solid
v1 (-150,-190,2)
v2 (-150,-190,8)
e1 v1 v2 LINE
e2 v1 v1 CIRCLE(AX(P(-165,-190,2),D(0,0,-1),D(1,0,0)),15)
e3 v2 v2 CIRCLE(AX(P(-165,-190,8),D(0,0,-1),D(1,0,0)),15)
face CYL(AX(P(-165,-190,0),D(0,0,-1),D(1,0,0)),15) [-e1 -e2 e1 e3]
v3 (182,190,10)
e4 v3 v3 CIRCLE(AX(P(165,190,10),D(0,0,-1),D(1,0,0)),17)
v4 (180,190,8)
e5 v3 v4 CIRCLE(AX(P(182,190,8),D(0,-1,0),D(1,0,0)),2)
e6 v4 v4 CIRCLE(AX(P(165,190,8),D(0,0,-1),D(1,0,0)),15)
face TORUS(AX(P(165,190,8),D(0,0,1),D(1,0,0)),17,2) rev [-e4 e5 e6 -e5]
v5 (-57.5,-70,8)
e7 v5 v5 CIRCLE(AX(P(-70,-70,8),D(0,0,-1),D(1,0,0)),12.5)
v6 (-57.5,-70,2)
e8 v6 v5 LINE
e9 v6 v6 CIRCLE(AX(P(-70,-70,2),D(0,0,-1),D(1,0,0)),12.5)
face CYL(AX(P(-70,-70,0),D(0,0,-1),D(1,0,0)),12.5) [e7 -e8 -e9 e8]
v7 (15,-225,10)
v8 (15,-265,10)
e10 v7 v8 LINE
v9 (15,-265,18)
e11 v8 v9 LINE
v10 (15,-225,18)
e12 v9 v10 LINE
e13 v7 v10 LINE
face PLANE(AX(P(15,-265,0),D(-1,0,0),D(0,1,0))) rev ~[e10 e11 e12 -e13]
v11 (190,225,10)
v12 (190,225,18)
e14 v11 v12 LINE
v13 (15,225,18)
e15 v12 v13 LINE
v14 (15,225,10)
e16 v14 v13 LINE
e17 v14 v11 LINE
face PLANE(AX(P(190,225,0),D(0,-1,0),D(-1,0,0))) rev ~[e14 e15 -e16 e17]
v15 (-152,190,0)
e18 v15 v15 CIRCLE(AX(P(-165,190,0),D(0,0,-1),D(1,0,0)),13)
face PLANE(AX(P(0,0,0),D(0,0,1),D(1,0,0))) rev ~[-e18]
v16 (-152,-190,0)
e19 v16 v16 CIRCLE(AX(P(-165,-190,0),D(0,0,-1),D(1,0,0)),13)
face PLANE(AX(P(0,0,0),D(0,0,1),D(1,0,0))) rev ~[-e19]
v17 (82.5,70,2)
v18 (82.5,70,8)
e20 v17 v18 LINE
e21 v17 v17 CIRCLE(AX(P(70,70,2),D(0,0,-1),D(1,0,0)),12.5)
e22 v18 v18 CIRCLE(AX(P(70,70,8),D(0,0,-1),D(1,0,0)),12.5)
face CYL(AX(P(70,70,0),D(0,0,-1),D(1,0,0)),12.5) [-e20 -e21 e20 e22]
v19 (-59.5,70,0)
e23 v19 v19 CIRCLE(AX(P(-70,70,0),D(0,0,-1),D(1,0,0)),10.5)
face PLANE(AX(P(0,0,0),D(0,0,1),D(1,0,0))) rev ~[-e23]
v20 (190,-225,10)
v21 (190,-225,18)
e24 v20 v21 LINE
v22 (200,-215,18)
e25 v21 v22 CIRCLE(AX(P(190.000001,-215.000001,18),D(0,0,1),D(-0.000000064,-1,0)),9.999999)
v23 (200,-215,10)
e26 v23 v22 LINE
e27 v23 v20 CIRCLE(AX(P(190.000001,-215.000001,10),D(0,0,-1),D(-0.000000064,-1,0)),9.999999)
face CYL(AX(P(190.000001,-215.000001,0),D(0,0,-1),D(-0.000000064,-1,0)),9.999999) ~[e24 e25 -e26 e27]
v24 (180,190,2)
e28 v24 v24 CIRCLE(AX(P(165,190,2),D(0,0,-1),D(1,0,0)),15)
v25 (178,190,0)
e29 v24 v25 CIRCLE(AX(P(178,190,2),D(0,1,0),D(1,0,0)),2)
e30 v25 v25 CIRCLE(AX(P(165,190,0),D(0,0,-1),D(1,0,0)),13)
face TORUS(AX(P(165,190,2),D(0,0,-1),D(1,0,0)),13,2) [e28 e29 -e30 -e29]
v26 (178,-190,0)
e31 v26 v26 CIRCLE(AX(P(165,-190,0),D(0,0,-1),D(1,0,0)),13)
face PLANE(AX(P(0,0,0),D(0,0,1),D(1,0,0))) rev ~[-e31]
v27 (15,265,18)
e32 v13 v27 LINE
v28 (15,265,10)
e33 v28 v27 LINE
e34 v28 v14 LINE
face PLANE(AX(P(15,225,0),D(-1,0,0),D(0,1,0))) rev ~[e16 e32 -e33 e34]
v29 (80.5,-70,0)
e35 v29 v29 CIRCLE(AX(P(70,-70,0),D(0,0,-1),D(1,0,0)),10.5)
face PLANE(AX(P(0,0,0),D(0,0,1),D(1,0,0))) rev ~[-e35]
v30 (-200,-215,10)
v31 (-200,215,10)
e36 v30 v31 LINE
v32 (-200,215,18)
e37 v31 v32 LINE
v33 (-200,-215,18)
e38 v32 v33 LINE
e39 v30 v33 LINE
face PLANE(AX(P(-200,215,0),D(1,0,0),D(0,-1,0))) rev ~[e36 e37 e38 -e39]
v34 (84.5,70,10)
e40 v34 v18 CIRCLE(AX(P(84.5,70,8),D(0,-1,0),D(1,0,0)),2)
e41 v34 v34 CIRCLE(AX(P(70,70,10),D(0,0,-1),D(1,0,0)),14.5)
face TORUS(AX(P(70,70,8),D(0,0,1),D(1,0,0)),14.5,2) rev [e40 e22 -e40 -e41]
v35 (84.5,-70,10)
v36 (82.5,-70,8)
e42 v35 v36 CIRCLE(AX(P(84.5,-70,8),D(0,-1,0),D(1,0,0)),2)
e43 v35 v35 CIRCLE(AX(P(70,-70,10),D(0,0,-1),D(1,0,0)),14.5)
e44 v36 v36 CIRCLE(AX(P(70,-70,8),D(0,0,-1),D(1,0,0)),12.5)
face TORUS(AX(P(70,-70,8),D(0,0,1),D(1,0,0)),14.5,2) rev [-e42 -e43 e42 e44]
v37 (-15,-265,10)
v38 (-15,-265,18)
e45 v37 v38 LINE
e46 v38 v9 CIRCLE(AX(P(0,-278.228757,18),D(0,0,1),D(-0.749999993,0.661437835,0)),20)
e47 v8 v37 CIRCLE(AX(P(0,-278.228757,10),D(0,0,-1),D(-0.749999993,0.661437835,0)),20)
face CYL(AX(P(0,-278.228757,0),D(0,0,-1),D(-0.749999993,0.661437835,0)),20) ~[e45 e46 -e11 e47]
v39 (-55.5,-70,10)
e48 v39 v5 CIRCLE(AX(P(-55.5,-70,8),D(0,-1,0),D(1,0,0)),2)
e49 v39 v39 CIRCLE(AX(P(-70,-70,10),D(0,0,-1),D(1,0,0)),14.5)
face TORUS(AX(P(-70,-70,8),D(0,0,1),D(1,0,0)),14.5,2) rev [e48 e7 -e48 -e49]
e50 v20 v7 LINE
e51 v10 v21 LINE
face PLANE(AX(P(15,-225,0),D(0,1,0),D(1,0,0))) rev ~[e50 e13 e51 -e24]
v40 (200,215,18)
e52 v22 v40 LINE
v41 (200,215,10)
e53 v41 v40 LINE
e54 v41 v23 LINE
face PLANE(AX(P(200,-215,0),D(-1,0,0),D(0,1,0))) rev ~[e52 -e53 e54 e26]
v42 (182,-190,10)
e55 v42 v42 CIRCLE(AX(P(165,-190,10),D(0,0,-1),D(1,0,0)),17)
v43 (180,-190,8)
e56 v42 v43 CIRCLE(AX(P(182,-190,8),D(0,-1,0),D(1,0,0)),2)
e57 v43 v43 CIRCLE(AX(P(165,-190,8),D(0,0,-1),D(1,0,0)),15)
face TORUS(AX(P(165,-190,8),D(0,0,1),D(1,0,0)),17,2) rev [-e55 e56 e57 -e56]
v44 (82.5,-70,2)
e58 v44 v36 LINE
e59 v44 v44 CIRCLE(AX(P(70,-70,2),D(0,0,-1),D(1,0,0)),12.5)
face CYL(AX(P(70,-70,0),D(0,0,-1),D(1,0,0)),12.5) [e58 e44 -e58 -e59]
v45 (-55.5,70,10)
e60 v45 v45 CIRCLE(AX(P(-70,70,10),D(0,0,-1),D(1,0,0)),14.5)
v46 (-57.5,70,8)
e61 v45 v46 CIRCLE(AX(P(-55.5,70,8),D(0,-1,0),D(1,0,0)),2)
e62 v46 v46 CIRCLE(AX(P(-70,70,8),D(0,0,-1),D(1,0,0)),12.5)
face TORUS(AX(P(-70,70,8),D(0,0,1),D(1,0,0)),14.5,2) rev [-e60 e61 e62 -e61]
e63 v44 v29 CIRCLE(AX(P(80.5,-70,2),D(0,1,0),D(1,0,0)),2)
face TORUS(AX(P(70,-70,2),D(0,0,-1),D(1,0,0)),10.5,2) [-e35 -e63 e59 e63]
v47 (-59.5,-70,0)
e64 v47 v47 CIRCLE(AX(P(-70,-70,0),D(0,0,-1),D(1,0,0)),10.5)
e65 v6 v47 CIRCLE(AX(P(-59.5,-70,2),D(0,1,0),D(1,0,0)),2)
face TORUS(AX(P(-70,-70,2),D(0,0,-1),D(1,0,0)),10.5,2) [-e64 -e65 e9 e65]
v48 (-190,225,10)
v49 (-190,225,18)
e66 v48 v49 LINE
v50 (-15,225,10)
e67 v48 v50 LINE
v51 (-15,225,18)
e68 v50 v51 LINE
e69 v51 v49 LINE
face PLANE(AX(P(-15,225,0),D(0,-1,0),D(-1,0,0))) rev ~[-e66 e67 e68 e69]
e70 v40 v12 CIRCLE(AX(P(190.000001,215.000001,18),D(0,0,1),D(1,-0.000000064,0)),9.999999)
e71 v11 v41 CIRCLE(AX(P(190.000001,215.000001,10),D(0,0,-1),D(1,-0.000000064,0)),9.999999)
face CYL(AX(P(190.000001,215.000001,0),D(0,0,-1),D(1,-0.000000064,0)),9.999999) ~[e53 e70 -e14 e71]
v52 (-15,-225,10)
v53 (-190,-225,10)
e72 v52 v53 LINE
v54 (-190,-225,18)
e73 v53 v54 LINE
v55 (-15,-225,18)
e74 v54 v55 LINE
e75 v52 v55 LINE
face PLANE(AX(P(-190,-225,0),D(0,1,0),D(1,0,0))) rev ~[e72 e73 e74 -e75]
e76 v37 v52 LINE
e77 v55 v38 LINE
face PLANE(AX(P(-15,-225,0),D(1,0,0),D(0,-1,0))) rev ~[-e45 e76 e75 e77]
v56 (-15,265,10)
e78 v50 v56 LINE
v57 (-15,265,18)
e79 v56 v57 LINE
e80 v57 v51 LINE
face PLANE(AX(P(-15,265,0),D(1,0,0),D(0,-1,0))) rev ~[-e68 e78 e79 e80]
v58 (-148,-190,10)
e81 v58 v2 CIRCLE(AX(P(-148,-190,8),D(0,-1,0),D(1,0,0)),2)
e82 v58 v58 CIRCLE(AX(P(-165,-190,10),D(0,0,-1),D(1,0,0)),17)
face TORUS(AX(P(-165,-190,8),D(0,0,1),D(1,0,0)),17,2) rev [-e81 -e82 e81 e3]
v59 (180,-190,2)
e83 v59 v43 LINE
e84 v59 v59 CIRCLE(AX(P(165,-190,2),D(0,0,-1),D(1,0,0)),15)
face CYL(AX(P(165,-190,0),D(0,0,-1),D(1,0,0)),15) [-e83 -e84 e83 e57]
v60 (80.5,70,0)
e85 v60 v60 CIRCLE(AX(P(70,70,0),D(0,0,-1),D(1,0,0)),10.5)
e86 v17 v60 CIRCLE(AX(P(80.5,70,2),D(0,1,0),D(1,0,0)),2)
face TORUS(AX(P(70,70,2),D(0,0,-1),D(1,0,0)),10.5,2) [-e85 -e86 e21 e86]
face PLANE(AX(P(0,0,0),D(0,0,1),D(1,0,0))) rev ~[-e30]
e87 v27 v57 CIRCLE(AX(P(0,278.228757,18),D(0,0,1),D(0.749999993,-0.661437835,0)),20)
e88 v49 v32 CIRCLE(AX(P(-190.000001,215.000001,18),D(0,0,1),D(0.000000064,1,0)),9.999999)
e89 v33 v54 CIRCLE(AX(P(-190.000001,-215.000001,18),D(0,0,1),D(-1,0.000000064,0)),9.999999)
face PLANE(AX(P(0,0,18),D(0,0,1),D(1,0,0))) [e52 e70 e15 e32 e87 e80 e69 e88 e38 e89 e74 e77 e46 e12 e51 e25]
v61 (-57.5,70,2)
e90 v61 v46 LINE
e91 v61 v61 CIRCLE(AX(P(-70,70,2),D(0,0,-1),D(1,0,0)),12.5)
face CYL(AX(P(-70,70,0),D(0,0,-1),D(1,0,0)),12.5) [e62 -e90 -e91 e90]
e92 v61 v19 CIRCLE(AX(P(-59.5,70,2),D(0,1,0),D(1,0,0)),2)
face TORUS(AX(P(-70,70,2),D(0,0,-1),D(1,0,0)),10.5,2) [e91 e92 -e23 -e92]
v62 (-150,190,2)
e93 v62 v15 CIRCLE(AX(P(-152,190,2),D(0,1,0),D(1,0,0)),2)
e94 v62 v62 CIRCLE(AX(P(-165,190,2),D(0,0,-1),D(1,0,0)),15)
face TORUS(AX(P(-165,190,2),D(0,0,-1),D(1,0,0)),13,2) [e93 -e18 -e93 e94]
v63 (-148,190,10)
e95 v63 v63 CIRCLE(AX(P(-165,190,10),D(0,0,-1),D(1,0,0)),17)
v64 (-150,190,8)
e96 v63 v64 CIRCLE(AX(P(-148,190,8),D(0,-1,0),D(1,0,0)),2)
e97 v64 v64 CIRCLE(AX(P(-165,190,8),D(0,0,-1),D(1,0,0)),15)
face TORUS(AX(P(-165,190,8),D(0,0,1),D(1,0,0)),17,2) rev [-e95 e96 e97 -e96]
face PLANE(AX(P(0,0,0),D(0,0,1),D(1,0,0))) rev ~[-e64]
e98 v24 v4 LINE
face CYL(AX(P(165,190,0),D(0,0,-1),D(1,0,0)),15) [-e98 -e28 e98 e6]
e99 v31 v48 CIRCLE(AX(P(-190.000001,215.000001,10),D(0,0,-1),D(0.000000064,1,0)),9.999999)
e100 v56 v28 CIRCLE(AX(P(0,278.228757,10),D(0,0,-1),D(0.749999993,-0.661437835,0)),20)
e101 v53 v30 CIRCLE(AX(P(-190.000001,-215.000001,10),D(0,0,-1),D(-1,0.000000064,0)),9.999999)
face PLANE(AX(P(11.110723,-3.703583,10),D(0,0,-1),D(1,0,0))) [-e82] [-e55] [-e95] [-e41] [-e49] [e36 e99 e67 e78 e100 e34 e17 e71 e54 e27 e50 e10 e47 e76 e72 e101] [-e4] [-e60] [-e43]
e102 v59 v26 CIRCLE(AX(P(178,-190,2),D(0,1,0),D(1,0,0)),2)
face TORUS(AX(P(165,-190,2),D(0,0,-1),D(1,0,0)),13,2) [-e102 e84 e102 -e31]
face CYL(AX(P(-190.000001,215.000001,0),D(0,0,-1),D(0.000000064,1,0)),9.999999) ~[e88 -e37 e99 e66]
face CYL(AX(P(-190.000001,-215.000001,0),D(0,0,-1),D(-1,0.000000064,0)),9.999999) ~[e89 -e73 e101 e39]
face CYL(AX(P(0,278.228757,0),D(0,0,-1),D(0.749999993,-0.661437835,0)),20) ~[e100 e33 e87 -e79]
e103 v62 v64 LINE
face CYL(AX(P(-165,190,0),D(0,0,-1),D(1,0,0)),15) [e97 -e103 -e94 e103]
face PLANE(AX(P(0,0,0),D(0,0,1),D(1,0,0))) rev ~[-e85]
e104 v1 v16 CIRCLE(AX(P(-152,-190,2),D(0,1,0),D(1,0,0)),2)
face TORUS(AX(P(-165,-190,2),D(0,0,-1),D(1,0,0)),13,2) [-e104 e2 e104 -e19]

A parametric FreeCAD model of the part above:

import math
import FreeCAD as App
import Part
import Sketcher
Q = App.Units.Quantity


def edges_at(feature, points):
    """Names of the edges that pass closest to the given points."""
    edges = feature.Shape.Edges
    near = lambda p: min(range(len(edges)), key=lambda i: edges[i].distToShape(Part.Vertex(*p))[0])
    return sorted({f"Edge{near(p) + 1}" for p in points})


def add_polygon(sketch, points):
    """Adds a closed chain of lines whose ends are joined by coincident constraints."""
    first, n = sketch.GeometryCount, len(points)
    for a, b in zip(points, points[1:] + points[:1]):
        sketch.addGeometry(Part.LineSegment(App.Vector(*a, 0), App.Vector(*b, 0)), False)
    for i in range(n):
        sketch.addConstraint(Sketcher.Constraint("Coincident", first + i, 2, first + (i + 1) % n, 1))

doc = App.newDocument("Part")
body = doc.addObject("PartDesign::Body", "Body")

sketch1 = body.newObject("Sketcher::SketchObject", "Sketch")
sketch1.AttachmentSupport = (doc.getObject("XY_Plane"), [""])
sketch1.MapMode = "FlatFace"
sketch1.addGeometry([
    Part.LineSegment(App.Vector(-200, 215, 0), App.Vector(-200, -215, 0)),
    Part.ArcOfCircle(Part.Circle(App.Vector(-190.000001, -215.000001, 0), App.Vector(0, 0, 1), 9.999999), math.radians(179.999996), math.radians(270.000004)),
    Part.LineSegment(App.Vector(-190, -225, 0), App.Vector(-15, -225, 0)),
    Part.LineSegment(App.Vector(-15, -225, 0), App.Vector(-15, -265, 0)),
    Part.ArcOfCircle(Part.Circle(App.Vector(0, -278.228757, 0), App.Vector(0, 0, 1), 20), math.radians(138.590377), math.radians(401.409623)),
    Part.LineSegment(App.Vector(15, -265, 0), App.Vector(15, -225, 0)),
    Part.LineSegment(App.Vector(15, -225, 0), App.Vector(190, -225, 0)),
    Part.ArcOfCircle(Part.Circle(App.Vector(190.000001, -215.000001, 0), App.Vector(0, 0, 1), 9.999999), math.radians(-90.000004), math.radians(0.000004)),
    Part.LineSegment(App.Vector(200, -215, 0), App.Vector(200, 215, 0)),
    Part.ArcOfCircle(Part.Circle(App.Vector(190.000001, 215.000001, 0), App.Vector(0, 0, 1), 9.999999), math.radians(-0.000004), math.radians(90.000004)),
    Part.LineSegment(App.Vector(190, 225, 0), App.Vector(15, 225, 0)),
    Part.LineSegment(App.Vector(15, 225, 0), App.Vector(15, 265, 0)),
    Part.ArcOfCircle(Part.Circle(App.Vector(0, 278.228757, 0), App.Vector(0, 0, 1), 20), math.radians(-41.409623), math.radians(221.409623)),
    Part.LineSegment(App.Vector(-15, 265, 0), App.Vector(-15, 225, 0)),
    Part.LineSegment(App.Vector(-15, 225, 0), App.Vector(-190, 225, 0)),
    Part.ArcOfCircle(Part.Circle(App.Vector(-190.000001, 215.000001, 0), App.Vector(0, 0, 1), 9.999999), math.radians(89.999996), math.radians(180.000004)),
], False)
sketch1.addConstraint([
    Sketcher.Constraint("Tangent", 0, 2, 1, 1),
    Sketcher.Constraint("Tangent", 1, 2, 2, 1),
    Sketcher.Constraint("Coincident", 2, 2, 3, 1),
    Sketcher.Constraint("Coincident", 3, 2, 4, 1),
    Sketcher.Constraint("Coincident", 4, 2, 5, 1),
    Sketcher.Constraint("Coincident", 5, 2, 6, 1),
    Sketcher.Constraint("Tangent", 6, 2, 7, 1),
    Sketcher.Constraint("Tangent", 7, 2, 8, 1),
    Sketcher.Constraint("Tangent", 8, 2, 9, 1),
    Sketcher.Constraint("Tangent", 9, 2, 10, 1),
    Sketcher.Constraint("Coincident", 10, 2, 11, 1),
    Sketcher.Constraint("Coincident", 11, 2, 12, 1),
    Sketcher.Constraint("Coincident", 12, 2, 13, 1),
    Sketcher.Constraint("Coincident", 13, 2, 14, 1),
    Sketcher.Constraint("Tangent", 14, 2, 15, 1),
    Sketcher.Constraint("Tangent", 15, 2, 0, 1),
    Sketcher.Constraint("Vertical", 0),
    Sketcher.Constraint("Horizontal", 2),
    Sketcher.Constraint("Vertical", 3),
    Sketcher.Constraint("Vertical", 5),
    Sketcher.Constraint("Horizontal", 6),
    Sketcher.Constraint("Vertical", 8),
    Sketcher.Constraint("Horizontal", 10),
    Sketcher.Constraint("Vertical", 11),
    Sketcher.Constraint("Vertical", 13),
    Sketcher.Constraint("Horizontal", 14),
    Sketcher.Constraint("Equal", 1, 7),
    Sketcher.Constraint("Equal", 7, 9),
    Sketcher.Constraint("Equal", 4, 12),
    Sketcher.Constraint("Equal", 9, 15),
    Sketcher.Constraint("Symmetric", 1, 3, 9, 3, -1, 1),
    Sketcher.Constraint("Symmetric", 4, 3, 12, 3, -1, 1),
    Sketcher.Constraint("Symmetric", 5, 2, 13, 2, -1, 1),
    Sketcher.Constraint("Symmetric", 3, 2, 4, 2, -2),
    Sketcher.Constraint("Symmetric", 10, 2, 13, 2, -2),
    Sketcher.Constraint("Radius", 1, Q("9.999999 mm")),
    Sketcher.Constraint("Radius", 4, Q("20 mm")),
    Sketcher.Constraint("DistanceX", 2, 1, 2, 2, Q("175 mm")),
    Sketcher.Constraint("DistanceY", 0, 2, 0, 1, Q("430 mm")),
    Sketcher.Constraint("DistanceY", 3, 2, 3, 1, Q("40 mm")),
    Sketcher.Constraint("DistanceX", 1, 3, -1, 1, Q("190.000001 mm")),
])
pad1 = body.newObject("PartDesign::Pad", "Pad")
pad1.Profile = sketch1
pad1.Length = 18

sketch2 = body.newObject("Sketcher::SketchObject", "Sketch001")
sketch2.AttachmentSupport = (doc.getObject("XY_Plane"), [""])
sketch2.MapMode = "FlatFace"
add_polygon(sketch2, [(-287.656665, -310.582304), (-287.656665, 303.175138), (309.878111, 303.175138), (309.878111, -310.582304)])
sketch2.addGeometry(Part.Circle(App.Vector(-165, 190, 0), App.Vector(0, 0, 1), 15), False)
sketch2.addGeometry(Part.Circle(App.Vector(-70, 70, 0), App.Vector(0, 0, 1), 12.5), False)
sketch2.addGeometry(Part.Circle(App.Vector(165, 190, 0), App.Vector(0, 0, 1), 15), False)
sketch2.addGeometry(Part.Circle(App.Vector(70, 70, 0), App.Vector(0, 0, 1), 12.5), False)
sketch2.addGeometry(Part.Circle(App.Vector(-70, -70, 0), App.Vector(0, 0, 1), 12.5), False)
sketch2.addGeometry(Part.Circle(App.Vector(-165, -190, 0), App.Vector(0, 0, 1), 15), False)
sketch2.addGeometry(Part.Circle(App.Vector(70, -70, 0), App.Vector(0, 0, 1), 12.5), False)
sketch2.addGeometry(Part.Circle(App.Vector(165, -190, 0), App.Vector(0, 0, 1), 15), False)
sketch2.addConstraint([
    Sketcher.Constraint("Vertical", 0),
    Sketcher.Constraint("Horizontal", 1),
    Sketcher.Constraint("Vertical", 2),
    Sketcher.Constraint("Horizontal", 3),
    Sketcher.Constraint("Equal", 4, 6),
    Sketcher.Constraint("Equal", 5, 7),
    Sketcher.Constraint("Equal", 7, 8),
    Sketcher.Constraint("Equal", 6, 9),
    Sketcher.Constraint("Equal", 8, 10),
    Sketcher.Constraint("Equal", 9, 11),
    Sketcher.Constraint("Symmetric", 7, 3, 8, 3, -1, 1),
    Sketcher.Constraint("Symmetric", 6, 3, 9, 3, -1, 1),
    Sketcher.Constraint("Symmetric", 5, 3, 10, 3, -1, 1),
    Sketcher.Constraint("Symmetric", 4, 3, 11, 3, -1, 1),
    Sketcher.Constraint("Symmetric", 4, 3, 6, 3, -2),
    Sketcher.Constraint("Symmetric", 5, 3, 7, 3, -2),
    Sketcher.Constraint("Diameter", 4, Q("30 mm")),
    Sketcher.Constraint("Diameter", 5, Q("25 mm")),
    Sketcher.Constraint("DistanceX", 4, 3, -1, 1, Q("165 mm")),
    Sketcher.Constraint("DistanceY", -1, 1, 4, 3, Q("190 mm")),
    Sketcher.Constraint("DistanceX", 5, 3, -1, 1, Q("70 mm")),
    Sketcher.Constraint("DistanceY", -1, 1, 5, 3, Q("70 mm")),
    Sketcher.Constraint("DistanceX", 1, 1, 1, 2, Q("597.534776 mm")),
    Sketcher.Constraint("DistanceY", 0, 1, 0, 2, Q("613.757442 mm")),
    Sketcher.Constraint("DistanceY", -1, 1, 0, 2, Q("303.175138 mm")),
    Sketcher.Constraint("DistanceX", -1, 1, 1, 2, Q("309.878111 mm")),
])
pocket1 = body.newObject("PartDesign::Pocket", "Pocket")
pocket1.Profile = sketch2
pocket1.Length = 10
pocket1.Reversed = True
doc.recompute()

fillet = body.newObject("PartDesign::Fillet", "Fillet")
fillet.Base = (pocket1, edges_at(pocket1, [
    (180, 190, 5),
    (150, 190, 0),
    (150, 190, 10),
    (82.5, 70, 5),
    (57.5, 70, 0),
    (57.5, 70, 10),
    (82.5, -70, 5),
    (57.5, -70, 0),
    (57.5, -70, 10),
    (180, -190, 5),
    (150, -190, 0),
    (150, -190, 10),
    (-57.5, -70, 5),
    (-82.5, -70, 0),
    (-82.5, -70, 10),
    (-57.5, 70, 5),
    (-82.5, 70, 0),
    (-82.5, 70, 10),
    (-150, -190, 5),
    (-180, -190, 0),
    (-180, -190, 10),
    (-150, 190, 5),
    (-180, 190, 0),
    (-180, 190, 10),
]))
fillet.Radius = 2

doc.recompute()
